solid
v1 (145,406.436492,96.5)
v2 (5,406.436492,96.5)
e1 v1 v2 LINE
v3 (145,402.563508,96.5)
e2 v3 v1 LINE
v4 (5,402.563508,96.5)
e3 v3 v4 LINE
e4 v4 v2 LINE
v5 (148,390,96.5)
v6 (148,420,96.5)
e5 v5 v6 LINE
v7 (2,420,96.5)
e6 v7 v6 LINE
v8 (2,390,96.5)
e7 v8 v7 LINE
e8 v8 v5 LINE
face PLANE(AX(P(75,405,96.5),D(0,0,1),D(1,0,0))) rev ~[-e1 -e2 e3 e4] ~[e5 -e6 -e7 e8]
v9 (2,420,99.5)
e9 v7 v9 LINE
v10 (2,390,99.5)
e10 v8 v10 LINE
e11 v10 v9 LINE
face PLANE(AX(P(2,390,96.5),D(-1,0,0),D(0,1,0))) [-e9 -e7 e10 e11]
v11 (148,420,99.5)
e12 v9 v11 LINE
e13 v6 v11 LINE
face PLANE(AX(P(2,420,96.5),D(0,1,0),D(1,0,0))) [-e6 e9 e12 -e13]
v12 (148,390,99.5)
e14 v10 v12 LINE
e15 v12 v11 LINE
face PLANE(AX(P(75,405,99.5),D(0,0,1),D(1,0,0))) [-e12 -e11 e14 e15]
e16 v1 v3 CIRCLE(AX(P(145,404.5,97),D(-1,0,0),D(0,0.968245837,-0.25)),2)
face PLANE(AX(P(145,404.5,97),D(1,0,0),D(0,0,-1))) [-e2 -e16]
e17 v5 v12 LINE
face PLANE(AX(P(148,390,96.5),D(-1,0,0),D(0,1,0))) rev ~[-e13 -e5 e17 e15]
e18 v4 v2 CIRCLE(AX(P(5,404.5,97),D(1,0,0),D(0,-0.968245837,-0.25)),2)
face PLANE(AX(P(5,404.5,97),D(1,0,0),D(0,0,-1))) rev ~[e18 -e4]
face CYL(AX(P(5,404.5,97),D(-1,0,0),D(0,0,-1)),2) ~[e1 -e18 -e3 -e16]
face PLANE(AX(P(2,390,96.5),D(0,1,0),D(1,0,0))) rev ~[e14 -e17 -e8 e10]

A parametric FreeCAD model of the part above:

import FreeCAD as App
import Part
import Sketcher
Q = App.Units.Quantity


def add_polygon(sketch, points):
    """Adds a closed chain of lines whose ends are joined by coincident constraints."""
    first, n = sketch.GeometryCount, len(points)
    for a, b in zip(points, points[1:] + points[:1]):
        sketch.addGeometry(Part.LineSegment(App.Vector(*a, 0), App.Vector(*b, 0)), False)
    for i in range(n):
        sketch.addConstraint(Sketcher.Constraint("Coincident", first + i, 2, first + (i + 1) % n, 1))

doc = App.newDocument("Part")
params = doc.addObject("Spreadsheet::Sheet", "Params")
for row, (alias, value) in enumerate([
    ("sketch1_diameter", "4 mm"),
    ("pad1_length", "140 mm"),
    ("sketch2_width", "146 mm"),
    ("sketch2_height", "30 mm"),
    ("pad2_length", "3 mm"),
], start=1):
    params.set(f"A{row}", alias)
    params.set(f"B{row}", "=" + value)
    params.setAlias(f"B{row}", alias)

body = doc.addObject("PartDesign::Body", "Body")

sketch1 = body.newObject("Sketcher::SketchObject", "Sketch")
sketch1.AttachmentSupport = (doc.getObject("YZ_Plane"), [""])
sketch1.MapMode = "FlatFace"
sketch1.AttachmentOffset = App.Placement(App.Vector(0, 0, 5), App.Rotation())
sketch1.addGeometry(Part.Circle(App.Vector(404.5, 97, 0), App.Vector(0, 0, 1), 2), False)
sketch1.addConstraint([
    Sketcher.Constraint("Diameter", 0, Q("4 mm")),
    Sketcher.Constraint("DistanceY", -1, 1, 0, 3, Q("97 mm")),
    Sketcher.Constraint("DistanceX", -1, 1, 0, 3, Q("404.5 mm")),
])
sketch1.setExpression("Constraints[0]", "Params.sketch1_diameter")
pad1 = body.newObject("PartDesign::Pad", "Pad")
pad1.Profile = sketch1
pad1.setExpression("Length", "Params.pad1_length")
body2 = doc.addObject("PartDesign::Body", "Body001")

sketch2 = body2.newObject("Sketcher::SketchObject", "Sketch001")
sketch2.AttachmentSupport = (doc.getObject("XY_Plane001"), [""])
sketch2.MapMode = "FlatFace"
sketch2.AttachmentOffset = App.Placement(App.Vector(0, 0, 96.5), App.Rotation())
add_polygon(sketch2, [(2, 420), (2, 390), (148, 390), (148, 420)])
sketch2.addConstraint([
    Sketcher.Constraint("Vertical", 0),
    Sketcher.Constraint("Horizontal", 1),
    Sketcher.Constraint("Vertical", 2),
    Sketcher.Constraint("Horizontal", 3),
    Sketcher.Constraint("DistanceX", 1, 1, 1, 2, Q("146 mm")),
    Sketcher.Constraint("DistanceY", 0, 2, 0, 1, Q("30 mm")),
    Sketcher.Constraint("DistanceX", -1, 1, 0, 2, Q("2 mm")),
    Sketcher.Constraint("DistanceY", -1, 1, 0, 2, Q("390 mm")),
])
sketch2.setExpression("Constraints[8]", "Params.sketch2_width")
sketch2.setExpression("Constraints[9]", "Params.sketch2_height")
pad2 = body2.newObject("PartDesign::Pad", "Pad001")
pad2.Profile = sketch2
pad2.setExpression("Length", "Params.pad2_length")
doc.recompute()

boolean = body2.newObject("PartDesign::Boolean", "Boolean")
boolean.Type = "Fuse"
boolean.addObjects([body])

doc.recompute()
